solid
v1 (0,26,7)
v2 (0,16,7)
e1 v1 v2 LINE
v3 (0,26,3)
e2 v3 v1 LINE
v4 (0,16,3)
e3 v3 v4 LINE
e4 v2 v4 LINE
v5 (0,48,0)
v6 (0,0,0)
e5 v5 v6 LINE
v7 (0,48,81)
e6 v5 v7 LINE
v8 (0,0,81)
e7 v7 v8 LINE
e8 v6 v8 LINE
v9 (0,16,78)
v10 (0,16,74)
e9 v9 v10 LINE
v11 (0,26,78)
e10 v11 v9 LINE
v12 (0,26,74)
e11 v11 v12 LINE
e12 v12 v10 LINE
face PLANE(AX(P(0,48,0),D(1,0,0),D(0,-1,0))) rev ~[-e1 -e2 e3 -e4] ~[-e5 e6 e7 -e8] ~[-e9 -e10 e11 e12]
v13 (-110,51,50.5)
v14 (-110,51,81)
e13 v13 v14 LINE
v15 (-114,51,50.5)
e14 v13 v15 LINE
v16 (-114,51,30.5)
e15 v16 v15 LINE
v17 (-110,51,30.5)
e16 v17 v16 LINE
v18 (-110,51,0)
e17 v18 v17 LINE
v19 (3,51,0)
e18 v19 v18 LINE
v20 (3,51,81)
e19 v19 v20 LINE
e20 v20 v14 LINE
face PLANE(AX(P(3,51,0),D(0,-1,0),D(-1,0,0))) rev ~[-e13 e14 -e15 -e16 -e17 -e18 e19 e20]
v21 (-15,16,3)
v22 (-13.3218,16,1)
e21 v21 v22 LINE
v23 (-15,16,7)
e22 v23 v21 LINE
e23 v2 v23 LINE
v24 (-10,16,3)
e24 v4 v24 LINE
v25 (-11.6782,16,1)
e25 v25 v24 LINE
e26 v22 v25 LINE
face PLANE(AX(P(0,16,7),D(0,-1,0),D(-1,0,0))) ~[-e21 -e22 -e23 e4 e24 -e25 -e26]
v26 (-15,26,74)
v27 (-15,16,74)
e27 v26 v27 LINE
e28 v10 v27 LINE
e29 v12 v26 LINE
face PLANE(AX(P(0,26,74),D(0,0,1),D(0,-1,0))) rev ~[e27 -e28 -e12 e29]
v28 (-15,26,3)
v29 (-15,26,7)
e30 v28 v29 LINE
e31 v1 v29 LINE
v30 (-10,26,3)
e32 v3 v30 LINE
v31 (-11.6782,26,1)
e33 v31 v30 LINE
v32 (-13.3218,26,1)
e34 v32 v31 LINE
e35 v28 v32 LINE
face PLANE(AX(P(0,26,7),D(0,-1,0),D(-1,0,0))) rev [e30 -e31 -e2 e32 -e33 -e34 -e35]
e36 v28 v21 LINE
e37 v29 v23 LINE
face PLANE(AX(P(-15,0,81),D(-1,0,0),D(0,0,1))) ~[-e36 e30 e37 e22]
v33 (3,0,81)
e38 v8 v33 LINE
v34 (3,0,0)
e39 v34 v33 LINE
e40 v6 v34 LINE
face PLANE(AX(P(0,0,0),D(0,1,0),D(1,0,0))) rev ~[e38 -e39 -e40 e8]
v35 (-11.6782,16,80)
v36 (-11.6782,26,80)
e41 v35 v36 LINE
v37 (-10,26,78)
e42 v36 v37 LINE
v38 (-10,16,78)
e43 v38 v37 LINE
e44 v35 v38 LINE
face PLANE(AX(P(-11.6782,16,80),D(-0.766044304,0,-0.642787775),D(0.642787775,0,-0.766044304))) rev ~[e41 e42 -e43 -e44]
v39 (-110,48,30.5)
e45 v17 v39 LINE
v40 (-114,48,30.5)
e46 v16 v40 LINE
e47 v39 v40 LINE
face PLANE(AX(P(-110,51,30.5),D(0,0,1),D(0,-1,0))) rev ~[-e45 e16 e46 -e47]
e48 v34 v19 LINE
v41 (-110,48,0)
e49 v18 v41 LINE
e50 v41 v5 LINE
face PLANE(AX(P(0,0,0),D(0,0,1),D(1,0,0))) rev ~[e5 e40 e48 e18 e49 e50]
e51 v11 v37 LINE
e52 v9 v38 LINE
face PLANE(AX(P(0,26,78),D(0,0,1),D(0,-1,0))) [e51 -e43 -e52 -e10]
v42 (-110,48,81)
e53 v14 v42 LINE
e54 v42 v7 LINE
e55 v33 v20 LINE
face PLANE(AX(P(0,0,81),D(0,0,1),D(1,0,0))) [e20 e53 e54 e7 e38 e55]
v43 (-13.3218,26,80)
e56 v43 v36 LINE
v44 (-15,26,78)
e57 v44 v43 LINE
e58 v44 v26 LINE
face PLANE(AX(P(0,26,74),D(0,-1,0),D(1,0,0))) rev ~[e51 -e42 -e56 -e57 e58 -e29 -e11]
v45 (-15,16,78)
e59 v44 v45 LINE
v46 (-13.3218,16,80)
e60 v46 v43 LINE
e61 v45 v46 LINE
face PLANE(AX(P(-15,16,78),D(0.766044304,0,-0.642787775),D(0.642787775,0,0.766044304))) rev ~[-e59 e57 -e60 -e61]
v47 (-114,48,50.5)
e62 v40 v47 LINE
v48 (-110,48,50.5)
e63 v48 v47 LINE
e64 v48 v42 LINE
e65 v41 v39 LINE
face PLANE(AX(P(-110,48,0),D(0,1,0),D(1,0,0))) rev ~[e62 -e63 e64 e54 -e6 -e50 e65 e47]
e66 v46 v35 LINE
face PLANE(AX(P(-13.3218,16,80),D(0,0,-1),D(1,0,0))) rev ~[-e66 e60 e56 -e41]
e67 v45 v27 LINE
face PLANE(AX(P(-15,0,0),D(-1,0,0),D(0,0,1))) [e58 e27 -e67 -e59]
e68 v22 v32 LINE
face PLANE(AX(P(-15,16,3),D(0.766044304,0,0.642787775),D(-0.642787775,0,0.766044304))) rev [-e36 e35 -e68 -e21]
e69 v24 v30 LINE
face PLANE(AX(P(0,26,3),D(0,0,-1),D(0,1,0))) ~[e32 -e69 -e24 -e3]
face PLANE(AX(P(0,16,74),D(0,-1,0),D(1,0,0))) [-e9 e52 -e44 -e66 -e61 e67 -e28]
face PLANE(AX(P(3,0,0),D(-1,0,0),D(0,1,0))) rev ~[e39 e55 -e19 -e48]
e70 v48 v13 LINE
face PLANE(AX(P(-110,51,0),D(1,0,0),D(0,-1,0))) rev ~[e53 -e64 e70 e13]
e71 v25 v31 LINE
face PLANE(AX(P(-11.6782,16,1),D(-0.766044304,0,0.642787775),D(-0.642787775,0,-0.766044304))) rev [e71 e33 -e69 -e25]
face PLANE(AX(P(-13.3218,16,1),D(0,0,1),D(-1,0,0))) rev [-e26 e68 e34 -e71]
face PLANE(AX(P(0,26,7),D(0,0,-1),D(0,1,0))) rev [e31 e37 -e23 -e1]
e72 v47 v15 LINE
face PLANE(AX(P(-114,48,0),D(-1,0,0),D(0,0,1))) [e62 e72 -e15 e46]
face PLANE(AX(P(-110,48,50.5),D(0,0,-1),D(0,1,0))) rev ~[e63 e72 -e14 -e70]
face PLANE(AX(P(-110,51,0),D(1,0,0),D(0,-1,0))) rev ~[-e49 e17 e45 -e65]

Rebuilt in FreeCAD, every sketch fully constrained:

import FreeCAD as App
import Part
import Sketcher

V = App.Vector
Q = App.Units.Quantity

doc = App.newDocument("Part")
body = doc.addObject("PartDesign::Body", "Body")

sketch1 = doc.addObject("Sketcher::SketchObject", "Sketch")
body.addObject(sketch1)
sketch1.AttachmentSupport = (doc.XY_Plane, [""])
sketch1.MapMode = "FlatFace"
sketch1.addGeometry([
    Part.LineSegment(V(0, 48, 0), V(0, 0, 0)),
    Part.LineSegment(V(0, 0, 0), V(3, 0, 0)),
    Part.LineSegment(V(3, 0, 0), V(3, 51, 0)),
    Part.LineSegment(V(3, 51, 0), V(-110, 51, 0)),
    Part.LineSegment(V(-110, 51, 0), V(-110, 48, 0)),
    Part.LineSegment(V(-110, 48, 0), V(0, 48, 0)),
], False)
sketch1.addConstraint([
    Sketcher.Constraint("Coincident", 0, 2, 1, 1),
    Sketcher.Constraint("Coincident", 1, 2, 2, 1),
    Sketcher.Constraint("Coincident", 2, 2, 3, 1),
    Sketcher.Constraint("Coincident", 3, 2, 4, 1),
    Sketcher.Constraint("Coincident", 4, 2, 5, 1),
    Sketcher.Constraint("Coincident", 5, 2, 0, 1),
    Sketcher.Constraint("Vertical", 0),
    Sketcher.Constraint("Horizontal", 1),
    Sketcher.Constraint("Vertical", 2),
    Sketcher.Constraint("Horizontal", 3),
    Sketcher.Constraint("Vertical", 4),
    Sketcher.Constraint("Horizontal", 5),
    Sketcher.Constraint("Coincident", 0, 2, -1, 1),
    Sketcher.Constraint("Equal", 1, 4),
    Sketcher.Constraint("DistanceX", 1, 1, 1, 2, Q("3 mm")),
    Sketcher.Constraint("DistanceX", 5, 1, 5, 2, Q("110 mm")),
    Sketcher.Constraint("DistanceY", 2, 1, 2, 2, Q("51 mm")),
])
pad1 = doc.addObject("PartDesign::Pad", "Pad")
body.addObject(pad1)
pad1.Profile = sketch1
pad1.Length = 81

sketch2 = doc.addObject("Sketcher::SketchObject", "Sketch001")
body.addObject(sketch2)
sketch2.AttachmentSupport = (doc.YZ_Plane, [""])
sketch2.MapMode = "FlatFace"
sketch2.AttachmentOffset = App.Placement(V(0, 0, -110), App.Rotation())
sketch2.addGeometry([
    Part.LineSegment(V(51, 30.5, 0), V(48, 30.5, 0)),
    Part.LineSegment(V(48, 30.5, 0), V(48, 50.5, 0)),
    Part.LineSegment(V(48, 50.5, 0), V(51, 50.5, 0)),
    Part.LineSegment(V(51, 50.5, 0), V(51, 30.5, 0)),
], False)
sketch2.addConstraint([
    Sketcher.Constraint("Coincident", 0, 2, 1, 1),
    Sketcher.Constraint("Coincident", 1, 2, 2, 1),
    Sketcher.Constraint("Coincident", 2, 2, 3, 1),
    Sketcher.Constraint("Coincident", 3, 2, 0, 1),
    Sketcher.Constraint("Horizontal", 0),
    Sketcher.Constraint("Vertical", 1),
    Sketcher.Constraint("Horizontal", 2),
    Sketcher.Constraint("Vertical", 3),
    Sketcher.Constraint("DistanceY", 1, 1, 1, 2, Q("20 mm")),
    Sketcher.Constraint("DistanceY", -1, 1, 0, 2, Q("30.5 mm")),
    Sketcher.Constraint("DistanceX", 0, 2, 0, 1, Q("3 mm")),
    Sketcher.Constraint("DistanceX", -1, 1, 0, 2, Q("48 mm")),
])
pad2 = doc.addObject("PartDesign::Pad", "Pad001")
body.addObject(pad2)
pad2.Profile = sketch2
pad2.Length = 4
pad2.Reversed = True

sketch3 = doc.addObject("Sketcher::SketchObject", "Sketch002")
body.addObject(sketch3)
sketch3.AttachmentSupport = (doc.YZ_Plane, [""])
sketch3.MapMode = "FlatFace"
sketch3.addGeometry([
    Part.LineSegment(V(16, 78, 0), V(26, 78, 0)),
    Part.LineSegment(V(26, 78, 0), V(26, 74, 0)),
    Part.LineSegment(V(26, 74, 0), V(16, 74, 0)),
    Part.LineSegment(V(16, 74, 0), V(16, 78, 0)),
], False)
sketch3.addConstraint([
    Sketcher.Constraint("Coincident", 0, 2, 1, 1),
    Sketcher.Constraint("Coincident", 1, 2, 2, 1),
    Sketcher.Constraint("Coincident", 2, 2, 3, 1),
    Sketcher.Constraint("Coincident", 3, 2, 0, 1),
    Sketcher.Constraint("Horizontal", 0),
    Sketcher.Constraint("Vertical", 1),
    Sketcher.Constraint("Horizontal", 2),
    Sketcher.Constraint("Vertical", 3),
    Sketcher.Constraint("DistanceX", 0, 1, 0, 2, Q("10 mm")),
    Sketcher.Constraint("DistanceY", 1, 2, 1, 1, Q("4 mm")),
    Sketcher.Constraint("DistanceY", -1, 1, 1, 2, Q("74 mm")),
    Sketcher.Constraint("DistanceX", -1, 1, 2, 2, Q("16 mm")),
])
pad3 = doc.addObject("PartDesign::Pad", "Pad002")
body.addObject(pad3)
pad3.Profile = sketch3
pad3.Length = 15
pad3.Reversed = True
doc.recompute()

datumplane = doc.addObject("PartDesign::Plane", "DatumPlane")
body.addObject(datumplane)
datumplane.AttachmentSupport = (doc.XY_Plane, [""])
datumplane.MapMode = "FlatFace"
datumplane.AttachmentOffset = App.Placement(V(0, 0, 40.5), App.Rotation())
mirrored = doc.addObject("PartDesign::Mirrored", "Mirrored")
body.addObject(mirrored)
mirrored.Originals = [pad3]
mirrored.MirrorPlane = (datumplane, [""])
body.Tip = mirrored

sketch4 = doc.addObject("Sketcher::SketchObject", "Sketch003")
body.addObject(sketch4)
sketch4.AttachmentSupport = (doc.XZ_Plane, [""])
sketch4.MapMode = "FlatFace"
sketch4.AttachmentOffset = App.Placement(V(0, 0, -16), App.Rotation())
sketch4.addGeometry([
    Part.LineSegment(V(-15, 78, 0), V(-10, 78, 0)),
    Part.LineSegment(V(-10, 78, 0), V(-11.6782, 80, 0)),
    Part.LineSegment(V(-11.6782, 80, 0), V(-13.3218, 80, 0)),
    Part.LineSegment(V(-13.3218, 80, 0), V(-15, 78, 0)),
], False)
sketch4.addConstraint([
    Sketcher.Constraint("Coincident", 0, 2, 1, 1),
    Sketcher.Constraint("Coincident", 1, 2, 2, 1),
    Sketcher.Constraint("Coincident", 2, 2, 3, 1),
    Sketcher.Constraint("Coincident", 3, 2, 0, 1),
    Sketcher.Constraint("Horizontal", 0),
    Sketcher.Constraint("Horizontal", 2),
    Sketcher.Constraint("Equal", 1, 3),
    Sketcher.Constraint("DistanceX", 0, 2, -1, 1, Q("10 mm")),
    Sketcher.Constraint("DistanceY", 0, 2, 1, 2, Q("2 mm")),
    Sketcher.Constraint("DistanceX", 0, 1, 0, 2, Q("5 mm")),
    Sketcher.Constraint("Angle", 1, Q("130 deg")),
    Sketcher.Constraint("DistanceY", -1, 1, 0, 2, Q("78 mm")),
])
pad4 = doc.addObject("PartDesign::Pad", "Pad003")
body.addObject(pad4)
pad4.Profile = sketch4
pad4.Length = 10
pad4.Reversed = True
doc.recompute()

datumplane2 = doc.addObject("PartDesign::Plane", "DatumPlane001")
body.addObject(datumplane2)
datumplane2.AttachmentSupport = (doc.XY_Plane, [""])
datumplane2.MapMode = "FlatFace"
datumplane2.AttachmentOffset = App.Placement(V(0, 0, 40.5), App.Rotation())
mirrored2 = doc.addObject("PartDesign::Mirrored", "Mirrored001")
body.addObject(mirrored2)
mirrored2.Originals = [pad4]
mirrored2.MirrorPlane = (datumplane2, [""])
body.Tip = mirrored2

doc.recompute()
